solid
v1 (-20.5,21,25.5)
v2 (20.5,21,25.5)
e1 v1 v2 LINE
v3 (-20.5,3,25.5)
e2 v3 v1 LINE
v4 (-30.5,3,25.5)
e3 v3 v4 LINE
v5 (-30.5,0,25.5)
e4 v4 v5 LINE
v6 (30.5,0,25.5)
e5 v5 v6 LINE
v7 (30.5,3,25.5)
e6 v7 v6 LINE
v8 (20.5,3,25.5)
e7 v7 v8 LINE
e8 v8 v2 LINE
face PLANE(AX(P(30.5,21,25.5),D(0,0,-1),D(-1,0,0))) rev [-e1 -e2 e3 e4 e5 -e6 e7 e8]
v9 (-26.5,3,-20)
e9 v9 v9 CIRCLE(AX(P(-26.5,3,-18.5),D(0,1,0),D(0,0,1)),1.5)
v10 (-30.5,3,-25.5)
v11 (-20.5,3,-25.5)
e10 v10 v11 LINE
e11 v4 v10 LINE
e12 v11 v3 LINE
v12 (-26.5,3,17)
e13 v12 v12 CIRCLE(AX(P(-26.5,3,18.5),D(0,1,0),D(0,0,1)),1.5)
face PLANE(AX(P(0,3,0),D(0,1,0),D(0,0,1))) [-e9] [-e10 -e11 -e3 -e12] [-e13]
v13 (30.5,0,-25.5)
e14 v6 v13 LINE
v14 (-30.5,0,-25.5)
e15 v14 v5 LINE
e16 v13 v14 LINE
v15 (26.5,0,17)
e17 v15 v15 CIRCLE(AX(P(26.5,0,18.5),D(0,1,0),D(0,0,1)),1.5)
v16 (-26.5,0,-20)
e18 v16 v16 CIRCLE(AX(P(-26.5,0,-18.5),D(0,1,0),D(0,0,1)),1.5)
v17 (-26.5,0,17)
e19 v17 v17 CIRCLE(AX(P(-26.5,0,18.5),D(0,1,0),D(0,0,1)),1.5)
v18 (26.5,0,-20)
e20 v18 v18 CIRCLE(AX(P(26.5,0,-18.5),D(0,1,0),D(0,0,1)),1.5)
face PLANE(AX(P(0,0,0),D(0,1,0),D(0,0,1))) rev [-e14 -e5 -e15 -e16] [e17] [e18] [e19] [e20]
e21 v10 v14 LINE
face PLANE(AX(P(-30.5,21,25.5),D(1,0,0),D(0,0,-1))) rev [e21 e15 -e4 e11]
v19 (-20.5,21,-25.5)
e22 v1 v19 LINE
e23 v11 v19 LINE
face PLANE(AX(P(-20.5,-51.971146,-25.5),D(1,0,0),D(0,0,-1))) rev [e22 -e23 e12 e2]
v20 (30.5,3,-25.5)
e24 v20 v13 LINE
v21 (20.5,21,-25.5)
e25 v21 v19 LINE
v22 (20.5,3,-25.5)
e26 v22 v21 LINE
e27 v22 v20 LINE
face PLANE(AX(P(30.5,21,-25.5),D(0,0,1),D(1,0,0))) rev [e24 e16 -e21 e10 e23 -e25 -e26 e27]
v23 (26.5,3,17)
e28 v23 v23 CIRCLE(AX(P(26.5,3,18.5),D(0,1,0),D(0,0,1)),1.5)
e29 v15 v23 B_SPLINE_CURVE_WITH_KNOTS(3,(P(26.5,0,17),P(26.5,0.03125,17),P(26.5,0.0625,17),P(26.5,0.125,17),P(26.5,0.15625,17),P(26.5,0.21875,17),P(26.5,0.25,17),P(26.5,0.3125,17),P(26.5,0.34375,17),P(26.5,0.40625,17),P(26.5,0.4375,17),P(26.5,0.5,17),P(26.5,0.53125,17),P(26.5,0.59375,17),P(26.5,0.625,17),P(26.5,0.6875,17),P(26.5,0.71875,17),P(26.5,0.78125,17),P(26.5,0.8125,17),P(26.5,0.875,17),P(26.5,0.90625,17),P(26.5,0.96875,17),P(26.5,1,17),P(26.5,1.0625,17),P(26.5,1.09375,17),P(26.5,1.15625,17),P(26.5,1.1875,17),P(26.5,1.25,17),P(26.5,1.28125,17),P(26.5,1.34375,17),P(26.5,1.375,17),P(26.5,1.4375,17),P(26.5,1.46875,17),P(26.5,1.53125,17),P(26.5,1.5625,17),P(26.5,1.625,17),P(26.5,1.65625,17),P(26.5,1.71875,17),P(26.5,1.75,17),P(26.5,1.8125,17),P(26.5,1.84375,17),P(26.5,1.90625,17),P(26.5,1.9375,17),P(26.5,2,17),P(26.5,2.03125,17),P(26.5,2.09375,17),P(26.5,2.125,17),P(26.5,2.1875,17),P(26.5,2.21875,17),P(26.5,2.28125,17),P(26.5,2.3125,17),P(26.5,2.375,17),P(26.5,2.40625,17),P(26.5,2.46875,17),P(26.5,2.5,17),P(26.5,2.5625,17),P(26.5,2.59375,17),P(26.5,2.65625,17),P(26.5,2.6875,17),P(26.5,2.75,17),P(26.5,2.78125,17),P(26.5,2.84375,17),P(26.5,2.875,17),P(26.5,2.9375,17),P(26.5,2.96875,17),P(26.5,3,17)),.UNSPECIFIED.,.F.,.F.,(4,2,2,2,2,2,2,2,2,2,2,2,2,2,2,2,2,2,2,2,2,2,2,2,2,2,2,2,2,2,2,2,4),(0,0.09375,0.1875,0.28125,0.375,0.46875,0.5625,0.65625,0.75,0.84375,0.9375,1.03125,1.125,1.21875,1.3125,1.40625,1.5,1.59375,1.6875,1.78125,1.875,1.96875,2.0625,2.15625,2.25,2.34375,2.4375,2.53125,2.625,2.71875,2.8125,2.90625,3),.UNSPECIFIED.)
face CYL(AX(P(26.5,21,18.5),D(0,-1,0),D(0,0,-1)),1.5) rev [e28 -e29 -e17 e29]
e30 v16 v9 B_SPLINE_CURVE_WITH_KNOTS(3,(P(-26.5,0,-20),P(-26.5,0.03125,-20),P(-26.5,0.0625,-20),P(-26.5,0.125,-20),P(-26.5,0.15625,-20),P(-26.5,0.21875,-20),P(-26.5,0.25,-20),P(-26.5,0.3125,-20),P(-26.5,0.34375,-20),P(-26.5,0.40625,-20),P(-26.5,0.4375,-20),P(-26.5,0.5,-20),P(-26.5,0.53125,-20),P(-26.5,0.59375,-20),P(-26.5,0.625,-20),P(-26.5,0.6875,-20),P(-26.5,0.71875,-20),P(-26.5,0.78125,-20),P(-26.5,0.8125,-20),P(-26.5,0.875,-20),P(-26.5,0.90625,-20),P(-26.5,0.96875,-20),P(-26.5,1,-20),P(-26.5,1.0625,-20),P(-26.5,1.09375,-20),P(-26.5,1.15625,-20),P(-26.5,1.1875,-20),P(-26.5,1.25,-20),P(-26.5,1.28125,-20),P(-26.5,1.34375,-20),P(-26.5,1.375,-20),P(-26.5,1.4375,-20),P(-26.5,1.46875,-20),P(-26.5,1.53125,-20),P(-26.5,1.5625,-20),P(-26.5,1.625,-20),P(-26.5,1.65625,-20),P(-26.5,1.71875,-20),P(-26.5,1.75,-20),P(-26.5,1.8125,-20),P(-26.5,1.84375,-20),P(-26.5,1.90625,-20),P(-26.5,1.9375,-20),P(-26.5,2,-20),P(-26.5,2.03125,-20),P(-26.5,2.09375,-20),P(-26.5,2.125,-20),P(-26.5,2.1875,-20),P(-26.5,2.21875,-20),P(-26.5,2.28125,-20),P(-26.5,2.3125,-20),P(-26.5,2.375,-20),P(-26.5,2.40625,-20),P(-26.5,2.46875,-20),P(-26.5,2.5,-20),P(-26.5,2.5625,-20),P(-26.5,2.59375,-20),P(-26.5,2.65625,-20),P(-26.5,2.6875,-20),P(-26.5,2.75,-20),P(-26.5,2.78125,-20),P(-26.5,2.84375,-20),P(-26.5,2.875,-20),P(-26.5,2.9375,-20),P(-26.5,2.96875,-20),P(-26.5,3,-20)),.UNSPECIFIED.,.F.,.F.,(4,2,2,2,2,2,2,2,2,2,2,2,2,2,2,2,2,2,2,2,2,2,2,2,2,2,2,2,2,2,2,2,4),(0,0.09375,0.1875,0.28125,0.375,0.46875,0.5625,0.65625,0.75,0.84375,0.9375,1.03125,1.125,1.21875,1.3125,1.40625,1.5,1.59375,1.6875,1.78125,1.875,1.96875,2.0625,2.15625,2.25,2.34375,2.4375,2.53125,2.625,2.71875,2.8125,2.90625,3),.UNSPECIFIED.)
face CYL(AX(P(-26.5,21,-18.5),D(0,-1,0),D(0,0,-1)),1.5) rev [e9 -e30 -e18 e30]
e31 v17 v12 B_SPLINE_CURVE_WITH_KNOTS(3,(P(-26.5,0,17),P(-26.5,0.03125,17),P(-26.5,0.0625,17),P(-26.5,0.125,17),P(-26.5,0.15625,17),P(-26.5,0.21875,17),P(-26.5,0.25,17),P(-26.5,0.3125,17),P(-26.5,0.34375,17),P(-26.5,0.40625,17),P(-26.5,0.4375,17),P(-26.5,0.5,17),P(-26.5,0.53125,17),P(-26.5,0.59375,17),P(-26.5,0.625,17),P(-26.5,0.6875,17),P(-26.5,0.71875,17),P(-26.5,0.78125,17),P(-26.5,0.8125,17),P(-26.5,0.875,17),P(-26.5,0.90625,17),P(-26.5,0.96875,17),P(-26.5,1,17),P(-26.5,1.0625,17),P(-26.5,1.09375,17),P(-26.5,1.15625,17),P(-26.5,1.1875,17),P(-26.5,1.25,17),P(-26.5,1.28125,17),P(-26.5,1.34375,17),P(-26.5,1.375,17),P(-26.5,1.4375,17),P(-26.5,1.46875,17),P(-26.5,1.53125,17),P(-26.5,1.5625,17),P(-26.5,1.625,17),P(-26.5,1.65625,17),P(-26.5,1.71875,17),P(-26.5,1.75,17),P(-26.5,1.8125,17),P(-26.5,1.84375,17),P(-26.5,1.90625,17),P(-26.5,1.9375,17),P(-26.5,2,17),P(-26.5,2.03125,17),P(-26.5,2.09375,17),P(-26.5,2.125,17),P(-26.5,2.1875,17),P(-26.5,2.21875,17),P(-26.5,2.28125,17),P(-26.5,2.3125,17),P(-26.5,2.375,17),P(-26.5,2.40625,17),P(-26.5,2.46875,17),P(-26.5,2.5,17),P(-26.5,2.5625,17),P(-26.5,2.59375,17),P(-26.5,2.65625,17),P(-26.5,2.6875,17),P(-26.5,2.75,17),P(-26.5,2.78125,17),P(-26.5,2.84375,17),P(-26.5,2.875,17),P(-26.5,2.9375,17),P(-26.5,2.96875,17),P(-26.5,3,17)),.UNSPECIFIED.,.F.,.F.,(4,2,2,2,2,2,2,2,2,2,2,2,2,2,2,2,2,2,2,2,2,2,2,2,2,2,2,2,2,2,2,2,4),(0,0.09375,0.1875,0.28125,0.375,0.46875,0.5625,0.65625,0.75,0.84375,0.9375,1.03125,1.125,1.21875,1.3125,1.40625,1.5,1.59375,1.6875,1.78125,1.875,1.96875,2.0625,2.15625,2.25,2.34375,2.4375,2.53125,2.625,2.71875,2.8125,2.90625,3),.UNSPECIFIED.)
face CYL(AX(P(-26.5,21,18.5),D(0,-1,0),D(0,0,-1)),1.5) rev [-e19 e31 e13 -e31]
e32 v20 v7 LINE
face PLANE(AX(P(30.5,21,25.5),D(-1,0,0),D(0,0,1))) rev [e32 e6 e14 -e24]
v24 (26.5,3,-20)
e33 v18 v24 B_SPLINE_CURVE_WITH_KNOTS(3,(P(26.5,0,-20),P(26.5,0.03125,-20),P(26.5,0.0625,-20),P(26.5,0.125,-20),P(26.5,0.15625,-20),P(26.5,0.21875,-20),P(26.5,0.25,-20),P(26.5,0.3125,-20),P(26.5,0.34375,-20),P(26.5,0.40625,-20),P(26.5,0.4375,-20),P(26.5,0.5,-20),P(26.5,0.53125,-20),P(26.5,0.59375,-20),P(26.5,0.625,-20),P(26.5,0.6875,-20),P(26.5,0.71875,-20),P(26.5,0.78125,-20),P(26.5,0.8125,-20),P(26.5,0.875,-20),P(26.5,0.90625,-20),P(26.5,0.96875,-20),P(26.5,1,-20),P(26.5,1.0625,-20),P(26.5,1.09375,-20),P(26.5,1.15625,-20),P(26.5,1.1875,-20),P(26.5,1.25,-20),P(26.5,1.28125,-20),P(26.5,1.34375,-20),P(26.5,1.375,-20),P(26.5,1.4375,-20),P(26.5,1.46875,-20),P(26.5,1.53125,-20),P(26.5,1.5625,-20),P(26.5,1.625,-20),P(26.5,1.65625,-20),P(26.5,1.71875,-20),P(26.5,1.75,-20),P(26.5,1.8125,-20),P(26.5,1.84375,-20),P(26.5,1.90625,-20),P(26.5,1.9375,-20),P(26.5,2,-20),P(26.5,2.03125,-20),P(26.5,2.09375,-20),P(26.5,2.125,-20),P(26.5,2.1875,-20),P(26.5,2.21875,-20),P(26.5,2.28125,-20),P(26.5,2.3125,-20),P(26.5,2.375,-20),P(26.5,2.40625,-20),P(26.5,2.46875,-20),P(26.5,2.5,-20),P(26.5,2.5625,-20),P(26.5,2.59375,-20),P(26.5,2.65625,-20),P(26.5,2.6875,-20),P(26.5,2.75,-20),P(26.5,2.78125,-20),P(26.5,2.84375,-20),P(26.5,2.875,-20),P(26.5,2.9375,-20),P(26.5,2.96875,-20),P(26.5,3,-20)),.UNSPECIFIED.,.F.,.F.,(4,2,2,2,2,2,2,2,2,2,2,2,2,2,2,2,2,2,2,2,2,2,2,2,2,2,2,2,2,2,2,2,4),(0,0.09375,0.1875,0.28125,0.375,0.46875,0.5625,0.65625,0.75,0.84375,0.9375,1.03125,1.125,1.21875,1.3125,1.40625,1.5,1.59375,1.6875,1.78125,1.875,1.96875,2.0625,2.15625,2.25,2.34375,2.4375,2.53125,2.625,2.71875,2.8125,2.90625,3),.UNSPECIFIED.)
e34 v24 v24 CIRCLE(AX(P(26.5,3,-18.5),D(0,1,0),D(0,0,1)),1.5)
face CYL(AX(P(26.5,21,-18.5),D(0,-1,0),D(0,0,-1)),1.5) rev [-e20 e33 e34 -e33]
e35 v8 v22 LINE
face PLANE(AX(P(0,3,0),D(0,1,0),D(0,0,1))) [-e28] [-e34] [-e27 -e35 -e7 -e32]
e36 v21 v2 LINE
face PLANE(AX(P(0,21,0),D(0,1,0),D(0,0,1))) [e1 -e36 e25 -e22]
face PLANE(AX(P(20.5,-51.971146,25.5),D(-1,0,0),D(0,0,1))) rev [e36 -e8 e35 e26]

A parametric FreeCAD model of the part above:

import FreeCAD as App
import Part
import Sketcher

V = App.Vector
Q = App.Units.Quantity

doc = App.newDocument("Part")
body = doc.addObject("PartDesign::Body", "Body")

# Sketch on XZ plane
sketch1 = body.newObject("Sketcher::SketchObject", "Sketch")
sketch1.AttachmentSupport = (doc.getObject("XZ_Plane"), [""])
sketch1.MapMode = "FlatFace"
sketch1.addGeometry(Part.LineSegment(V(-30.5, -25.5, 0), V(-30.5, 25.5, 0)), False)
sketch1.addGeometry(Part.LineSegment(V(-30.5, 25.5, 0), V(30.5, 25.5, 0)), False)
sketch1.addGeometry(Part.LineSegment(V(30.5, 25.5, 0), V(30.5, -25.5, 0)), False)
sketch1.addGeometry(Part.LineSegment(V(30.5, -25.5, 0), V(-30.5, -25.5, 0)), False)
sketch1.addGeometry(Part.Circle(V(-26.5, 18.5, 0), V(0, 0, 1), 1.5), False)
sketch1.addGeometry(Part.Circle(V(26.5, 18.5, 0), V(0, 0, 1), 1.5), False)
sketch1.addGeometry(Part.Circle(V(-26.5, -18.5, 0), V(0, 0, 1), 1.5), False)
sketch1.addGeometry(Part.Circle(V(26.5, -18.5, 0), V(0, 0, 1), 1.5), False)
sketch1.addConstraint(Sketcher.Constraint("Coincident", 0, 2, 1, 1))
sketch1.addConstraint(Sketcher.Constraint("Coincident", 1, 2, 2, 1))
sketch1.addConstraint(Sketcher.Constraint("Coincident", 2, 2, 3, 1))
sketch1.addConstraint(Sketcher.Constraint("Coincident", 3, 2, 0, 1))
sketch1.addConstraint(Sketcher.Constraint("Vertical", 0))
sketch1.addConstraint(Sketcher.Constraint("Horizontal", 1))
sketch1.addConstraint(Sketcher.Constraint("Vertical", 2))
sketch1.addConstraint(Sketcher.Constraint("Horizontal", 3))
sketch1.addConstraint(Sketcher.Constraint("Equal", 4, 5))
sketch1.addConstraint(Sketcher.Constraint("Equal", 5, 6))
sketch1.addConstraint(Sketcher.Constraint("Equal", 6, 7))
sketch1.addConstraint(Sketcher.Constraint("Symmetric", 5, 3, 6, 3, -1, 1))
sketch1.addConstraint(Sketcher.Constraint("Symmetric", 4, 3, 7, 3, -1, 1))
sketch1.addConstraint(Sketcher.Constraint("Symmetric", 0, 2, 2, 2, -1, 1))
sketch1.addConstraint(Sketcher.Constraint("Symmetric", 4, 3, 5, 3, -2))
sketch1.addConstraint(Sketcher.Constraint("Diameter", 4, Q("3 mm")))
sketch1.addConstraint(Sketcher.Constraint("DistanceX", 1, 1, 1, 2, Q("61 mm")))
sketch1.addConstraint(Sketcher.Constraint("DistanceY", 0, 1, 0, 2, Q("51 mm")))
sketch1.addConstraint(Sketcher.Constraint("DistanceX", 4, 3, 5, 3, Q("53 mm")))
sketch1.addConstraint(Sketcher.Constraint("DistanceY", 6, 3, 4, 3, Q("37 mm")))
pad1 = body.newObject("PartDesign::Pad", "Pad")
pad1.Profile = sketch1
pad1.Length = 21
pad1.Reversed = True

# Sketch on XZ plane
sketch2 = body.newObject("Sketcher::SketchObject", "Sketch001")
sketch2.AttachmentSupport = (doc.getObject("XZ_Plane"), [""])
sketch2.MapMode = "FlatFace"
sketch2.AttachmentOffset = App.Placement(V(0, 0, -21), App.Rotation())
sketch2.addGeometry(Part.LineSegment(V(-30.5, -25.5, 0), V(-30.5, 25.5, 0)), False)
sketch2.addGeometry(Part.LineSegment(V(-30.5, 25.5, 0), V(-20.5, 25.5, 0)), False)
sketch2.addGeometry(Part.LineSegment(V(-20.5, 25.5, 0), V(-20.5, -25.5, 0)), False)
sketch2.addGeometry(Part.LineSegment(V(-20.5, -25.5, 0), V(-30.5, -25.5, 0)), False)
sketch2.addGeometry(Part.LineSegment(V(20.5, -25.5, 0), V(20.5, 25.5, 0)), False)
sketch2.addGeometry(Part.LineSegment(V(20.5, 25.5, 0), V(30.5, 25.5, 0)), False)
sketch2.addGeometry(Part.LineSegment(V(30.5, 25.5, 0), V(30.5, -25.5, 0)), False)
sketch2.addGeometry(Part.LineSegment(V(30.5, -25.5, 0), V(20.5, -25.5, 0)), False)
sketch2.addConstraint(Sketcher.Constraint("Coincident", 0, 2, 1, 1))
sketch2.addConstraint(Sketcher.Constraint("Coincident", 1, 2, 2, 1))
sketch2.addConstraint(Sketcher.Constraint("Coincident", 2, 2, 3, 1))
sketch2.addConstraint(Sketcher.Constraint("Coincident", 3, 2, 0, 1))
sketch2.addConstraint(Sketcher.Constraint("Coincident", 4, 2, 5, 1))
sketch2.addConstraint(Sketcher.Constraint("Coincident", 5, 2, 6, 1))
sketch2.addConstraint(Sketcher.Constraint("Coincident", 6, 2, 7, 1))
sketch2.addConstraint(Sketcher.Constraint("Coincident", 7, 2, 4, 1))
sketch2.addConstraint(Sketcher.Constraint("Vertical", 0))
sketch2.addConstraint(Sketcher.Constraint("Horizontal", 1))
sketch2.addConstraint(Sketcher.Constraint("Vertical", 2))
sketch2.addConstraint(Sketcher.Constraint("Horizontal", 3))
sketch2.addConstraint(Sketcher.Constraint("Vertical", 4))
sketch2.addConstraint(Sketcher.Constraint("Horizontal", 5))
sketch2.addConstraint(Sketcher.Constraint("Vertical", 6))
sketch2.addConstraint(Sketcher.Constraint("Horizontal", 7))
sketch2.addConstraint(Sketcher.Constraint("Symmetric", 2, 2, 4, 2, -1, 1))
sketch2.addConstraint(Sketcher.Constraint("Symmetric", 0, 2, 6, 2, -1, 1))
sketch2.addConstraint(Sketcher.Constraint("Horizontal", 1, 2, 4, 2))
sketch2.addConstraint(Sketcher.Constraint("DistanceX", 1, 1, 1, 2, Q("10 mm")))
sketch2.addConstraint(Sketcher.Constraint("DistanceY", 0, 1, 0, 2, Q("51 mm")))
sketch2.addConstraint(Sketcher.Constraint("DistanceX", 1, 2, 4, 2, Q("41 mm")))
pocket1 = body.newObject("PartDesign::Pocket", "Pocket")
pocket1.Profile = sketch2
pocket1.Length = 18
pocket1.Reversed = True

doc.recompute()
